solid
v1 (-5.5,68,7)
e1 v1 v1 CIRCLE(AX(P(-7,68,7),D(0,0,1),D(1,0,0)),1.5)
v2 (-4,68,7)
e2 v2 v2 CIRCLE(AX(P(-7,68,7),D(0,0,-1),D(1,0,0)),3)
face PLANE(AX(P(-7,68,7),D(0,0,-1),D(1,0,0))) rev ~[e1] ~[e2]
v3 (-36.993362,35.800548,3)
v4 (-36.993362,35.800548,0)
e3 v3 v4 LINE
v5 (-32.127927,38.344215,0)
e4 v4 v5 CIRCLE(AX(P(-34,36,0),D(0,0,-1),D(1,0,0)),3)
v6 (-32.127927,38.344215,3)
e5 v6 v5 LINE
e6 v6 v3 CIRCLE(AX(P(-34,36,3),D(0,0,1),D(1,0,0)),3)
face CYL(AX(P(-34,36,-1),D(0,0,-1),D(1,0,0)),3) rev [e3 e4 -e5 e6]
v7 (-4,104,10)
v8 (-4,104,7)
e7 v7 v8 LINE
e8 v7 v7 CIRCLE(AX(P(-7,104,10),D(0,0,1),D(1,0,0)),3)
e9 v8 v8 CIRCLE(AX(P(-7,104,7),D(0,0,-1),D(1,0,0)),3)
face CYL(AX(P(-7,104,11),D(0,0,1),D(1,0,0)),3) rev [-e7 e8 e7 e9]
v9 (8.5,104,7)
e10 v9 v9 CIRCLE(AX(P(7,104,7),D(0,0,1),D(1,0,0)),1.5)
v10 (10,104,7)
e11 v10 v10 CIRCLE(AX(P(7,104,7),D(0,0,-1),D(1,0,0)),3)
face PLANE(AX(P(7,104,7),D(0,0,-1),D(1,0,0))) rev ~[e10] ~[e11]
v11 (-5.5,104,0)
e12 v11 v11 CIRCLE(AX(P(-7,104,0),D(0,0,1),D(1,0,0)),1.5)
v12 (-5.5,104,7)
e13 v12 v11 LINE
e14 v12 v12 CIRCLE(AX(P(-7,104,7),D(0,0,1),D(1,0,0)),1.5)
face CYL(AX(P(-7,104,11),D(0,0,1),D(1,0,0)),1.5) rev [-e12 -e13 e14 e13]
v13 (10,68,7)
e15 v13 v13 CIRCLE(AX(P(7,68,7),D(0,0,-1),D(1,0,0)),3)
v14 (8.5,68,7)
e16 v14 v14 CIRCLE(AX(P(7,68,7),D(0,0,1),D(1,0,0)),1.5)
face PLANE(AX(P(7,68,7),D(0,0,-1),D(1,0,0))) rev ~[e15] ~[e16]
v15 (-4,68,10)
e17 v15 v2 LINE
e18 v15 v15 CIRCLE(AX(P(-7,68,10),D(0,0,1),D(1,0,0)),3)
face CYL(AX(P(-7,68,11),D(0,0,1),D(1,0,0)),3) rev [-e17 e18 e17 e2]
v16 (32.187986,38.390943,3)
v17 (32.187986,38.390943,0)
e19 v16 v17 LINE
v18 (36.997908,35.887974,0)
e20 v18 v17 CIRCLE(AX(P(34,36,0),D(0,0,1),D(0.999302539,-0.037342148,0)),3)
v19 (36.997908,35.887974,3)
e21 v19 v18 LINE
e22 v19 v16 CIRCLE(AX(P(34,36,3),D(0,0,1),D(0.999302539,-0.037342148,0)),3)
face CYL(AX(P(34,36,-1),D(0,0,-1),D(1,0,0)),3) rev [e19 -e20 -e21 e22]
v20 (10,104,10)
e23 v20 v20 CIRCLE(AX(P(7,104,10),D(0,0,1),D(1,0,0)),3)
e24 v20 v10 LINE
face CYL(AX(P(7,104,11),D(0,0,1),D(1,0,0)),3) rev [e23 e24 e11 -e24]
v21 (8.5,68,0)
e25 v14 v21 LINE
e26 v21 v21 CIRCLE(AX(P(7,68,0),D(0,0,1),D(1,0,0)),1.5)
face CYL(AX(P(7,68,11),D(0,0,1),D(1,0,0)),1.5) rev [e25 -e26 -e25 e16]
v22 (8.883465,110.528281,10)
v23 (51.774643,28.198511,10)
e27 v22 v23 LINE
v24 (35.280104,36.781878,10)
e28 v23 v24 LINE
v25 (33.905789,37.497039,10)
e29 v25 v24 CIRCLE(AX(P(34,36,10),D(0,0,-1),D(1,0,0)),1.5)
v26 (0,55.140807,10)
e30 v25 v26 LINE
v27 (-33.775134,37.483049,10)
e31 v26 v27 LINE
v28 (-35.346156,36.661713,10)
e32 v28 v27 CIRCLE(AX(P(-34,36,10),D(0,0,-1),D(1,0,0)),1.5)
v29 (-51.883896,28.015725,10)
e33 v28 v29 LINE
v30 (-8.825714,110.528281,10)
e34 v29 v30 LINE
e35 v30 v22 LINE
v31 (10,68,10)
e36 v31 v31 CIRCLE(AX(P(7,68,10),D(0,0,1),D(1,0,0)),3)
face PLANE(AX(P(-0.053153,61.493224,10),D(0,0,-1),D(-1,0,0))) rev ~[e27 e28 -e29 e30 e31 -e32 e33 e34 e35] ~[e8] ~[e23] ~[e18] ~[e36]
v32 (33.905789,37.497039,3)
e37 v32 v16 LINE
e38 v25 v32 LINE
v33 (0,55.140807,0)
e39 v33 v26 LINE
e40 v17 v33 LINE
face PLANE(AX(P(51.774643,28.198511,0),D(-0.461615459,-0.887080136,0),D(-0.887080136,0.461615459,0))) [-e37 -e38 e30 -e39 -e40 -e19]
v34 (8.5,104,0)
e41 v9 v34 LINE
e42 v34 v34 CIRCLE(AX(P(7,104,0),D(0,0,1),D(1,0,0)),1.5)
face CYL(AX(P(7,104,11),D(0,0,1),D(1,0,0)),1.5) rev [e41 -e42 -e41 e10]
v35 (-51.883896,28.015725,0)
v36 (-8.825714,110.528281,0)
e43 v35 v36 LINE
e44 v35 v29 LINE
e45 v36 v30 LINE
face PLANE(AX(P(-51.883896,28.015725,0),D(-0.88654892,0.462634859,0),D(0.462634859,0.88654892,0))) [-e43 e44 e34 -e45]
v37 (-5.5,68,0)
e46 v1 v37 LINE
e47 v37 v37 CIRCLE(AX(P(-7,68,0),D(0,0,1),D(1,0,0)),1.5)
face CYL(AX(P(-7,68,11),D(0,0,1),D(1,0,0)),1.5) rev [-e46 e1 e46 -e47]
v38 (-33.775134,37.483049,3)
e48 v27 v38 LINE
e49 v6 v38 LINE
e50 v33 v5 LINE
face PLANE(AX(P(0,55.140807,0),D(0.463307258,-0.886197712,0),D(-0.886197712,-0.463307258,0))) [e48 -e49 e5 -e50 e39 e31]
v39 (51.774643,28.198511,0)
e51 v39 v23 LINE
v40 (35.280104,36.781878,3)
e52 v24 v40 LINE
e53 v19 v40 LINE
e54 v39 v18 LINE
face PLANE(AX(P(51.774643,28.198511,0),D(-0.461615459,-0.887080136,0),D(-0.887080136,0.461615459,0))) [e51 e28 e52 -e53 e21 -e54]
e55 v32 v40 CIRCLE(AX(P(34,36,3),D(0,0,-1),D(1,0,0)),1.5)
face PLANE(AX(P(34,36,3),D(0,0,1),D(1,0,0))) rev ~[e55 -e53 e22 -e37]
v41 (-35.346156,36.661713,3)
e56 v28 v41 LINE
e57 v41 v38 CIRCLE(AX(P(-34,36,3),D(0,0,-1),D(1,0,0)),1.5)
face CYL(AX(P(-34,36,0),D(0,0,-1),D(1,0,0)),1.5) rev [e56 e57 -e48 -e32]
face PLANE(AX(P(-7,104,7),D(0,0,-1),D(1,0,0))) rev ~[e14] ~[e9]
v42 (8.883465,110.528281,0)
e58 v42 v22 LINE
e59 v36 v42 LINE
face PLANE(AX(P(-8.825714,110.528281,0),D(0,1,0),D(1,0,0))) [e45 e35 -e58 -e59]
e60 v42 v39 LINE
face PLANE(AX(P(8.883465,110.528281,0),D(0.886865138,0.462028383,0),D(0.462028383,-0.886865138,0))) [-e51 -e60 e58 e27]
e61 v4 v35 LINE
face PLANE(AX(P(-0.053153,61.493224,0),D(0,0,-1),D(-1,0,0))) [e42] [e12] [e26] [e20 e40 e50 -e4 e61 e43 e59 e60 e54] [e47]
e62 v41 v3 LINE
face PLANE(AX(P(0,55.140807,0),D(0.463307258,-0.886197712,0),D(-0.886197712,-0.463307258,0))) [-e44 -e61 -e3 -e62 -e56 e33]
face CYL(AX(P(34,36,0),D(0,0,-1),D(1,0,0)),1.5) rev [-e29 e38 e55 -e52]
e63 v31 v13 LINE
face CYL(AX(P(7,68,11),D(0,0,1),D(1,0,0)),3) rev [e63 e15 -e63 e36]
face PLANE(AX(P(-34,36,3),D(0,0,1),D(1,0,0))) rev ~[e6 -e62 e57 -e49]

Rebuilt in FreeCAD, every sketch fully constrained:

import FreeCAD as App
import Part
import Sketcher

V = App.Vector
Q = App.Units.Quantity


def add_polygon(sketch, points):
    """Adds a closed chain of lines whose ends are joined by coincident constraints."""
    first, n = sketch.GeometryCount, len(points)
    for a, b in zip(points, points[1:] + points[:1]):
        sketch.addGeometry(Part.LineSegment(App.Vector(*a, 0), App.Vector(*b, 0)), False)
    for i in range(n):
        sketch.addConstraint(Sketcher.Constraint("Coincident", first + i, 2, first + (i + 1) % n, 1))

doc = App.newDocument("Part")
body = doc.addObject("PartDesign::Body", "Body")

# Sketch on XZ plane
sketch1 = doc.addObject("Sketcher::SketchObject", "Sketch")
body.addObject(sketch1)
sketch1.AttachmentSupport = (doc.XZ_Plane, [""])
sketch1.MapMode = "FlatFace"
sketch1.AttachmentOffset = App.Placement(V(0, 0, 34), App.Rotation())
sketch1.addGeometry(Part.Circle(V(-7, 37, 0), V(0, 0, 1), 3), False)
sketch1.addConstraint([
    Sketcher.Constraint("Diameter", 0, Q("6 mm")),
    Sketcher.Constraint("DistanceX", 0, 3, -1, 1, Q("7 mm")),
    Sketcher.Constraint("DistanceY", -1, 1, 0, 3, Q("37 mm")),
])
pad1 = doc.addObject("PartDesign::Pad", "Pad")
body.addObject(pad1)
pad1.Profile = sketch1
pad1.Length = 4
body2 = doc.addObject("PartDesign::Body", "Body001")

# Sketch on XZ plane
sketch2 = doc.addObject("Sketcher::SketchObject", "Sketch001")
body2.addObject(sketch2)
sketch2.AttachmentSupport = (doc.getObject("XZ_Plane001"), [""])
sketch2.MapMode = "FlatFace"
sketch2.AttachmentOffset = App.Placement(V(0, 0, 34), App.Rotation())
sketch2.addGeometry(Part.Circle(V(7, 73, 0), V(0, 0, 1), 3), False)
sketch2.addConstraint([
    Sketcher.Constraint("Diameter", 0, Q("6 mm")),
    Sketcher.Constraint("DistanceX", -1, 1, 0, 3, Q("7 mm")),
    Sketcher.Constraint("DistanceY", -1, 1, 0, 3, Q("73 mm")),
])
pad2 = doc.addObject("PartDesign::Pad", "Pad001")
body2.addObject(pad2)
pad2.Profile = sketch2
pad2.Length = 4
body3 = doc.addObject("PartDesign::Body", "Body002")

# Sketch on XZ plane
sketch3 = doc.addObject("Sketcher::SketchObject", "Sketch002")
body3.addObject(sketch3)
sketch3.AttachmentSupport = (doc.getObject("XZ_Plane002"), [""])
sketch3.MapMode = "FlatFace"
sketch3.AttachmentOffset = App.Placement(V(0, 0, 34), App.Rotation())
sketch3.addGeometry(Part.Circle(V(-7, 73, 0), V(0, 0, 1), 3), False)
sketch3.addConstraint([
    Sketcher.Constraint("Diameter", 0, Q("6 mm")),
    Sketcher.Constraint("DistanceX", 0, 3, -1, 1, Q("7 mm")),
    Sketcher.Constraint("DistanceY", -1, 1, 0, 3, Q("73 mm")),
])
pad3 = doc.addObject("PartDesign::Pad", "Pad002")
body3.addObject(pad3)
pad3.Profile = sketch3
pad3.Length = 4
body4 = doc.addObject("PartDesign::Body", "Body003")
body4.AllowCompound = True

# Sketch on XZ plane
sketch4 = doc.addObject("Sketcher::SketchObject", "Sketch003")
body4.addObject(sketch4)
sketch4.AttachmentSupport = (doc.getObject("XZ_Plane003"), [""])
sketch4.MapMode = "FlatFace"
sketch4.AttachmentOffset = App.Placement(V(0, 0, 34), App.Rotation())
sketch4.addGeometry(Part.Circle(V(7, 37, 0), V(0, 0, 1), 3), False)
sketch4.addConstraint([
    Sketcher.Constraint("Diameter", 0, Q("6 mm")),
    Sketcher.Constraint("DistanceX", -1, 1, 0, 3, Q("7 mm")),
    Sketcher.Constraint("DistanceY", -1, 1, 0, 3, Q("37 mm")),
])
pad4 = doc.addObject("PartDesign::Pad", "Pad003")
body4.addObject(pad4)
pad4.Profile = sketch4
pad4.Length = 4
doc.recompute()

boolean = doc.addObject("PartDesign::Boolean", "Boolean")
body4.addObject(boolean)
boolean.Type = "Fuse"
boolean.addObjects([body])
doc.recompute()

boolean2 = doc.addObject("PartDesign::Boolean", "Boolean001")
body4.addObject(boolean2)
boolean2.Type = "Fuse"
boolean2.addObjects([body2])
doc.recompute()

boolean3 = doc.addObject("PartDesign::Boolean", "Boolean002")
body4.addObject(boolean3)
boolean3.Type = "Fuse"
boolean3.addObjects([body3])
body5 = doc.addObject("PartDesign::Body", "Body004")
body5.AllowCompound = True
doc.recompute()

body4.Placement = App.Placement(V(0, 141, 45), App.Rotation(V(1, 0, 0), 90))
boolean4 = doc.addObject("PartDesign::Boolean", "Boolean003")
body5.addObject(boolean4)
boolean4.Type = "Fuse"
boolean4.addObjects([body4])
body6 = doc.addObject("PartDesign::Body", "Body005")

# Sketch on XZ plane
sketch5 = doc.addObject("Sketcher::SketchObject", "Sketch004")
body6.addObject(sketch5)
sketch5.AttachmentSupport = (doc.getObject("XZ_Plane005"), [""])
sketch5.MapMode = "FlatFace"
sketch5.AttachmentOffset = App.Placement(V(0, 0, 34), App.Rotation())
sketch5.addGeometry(Part.Circle(V(-7, 37, 0), V(0, 0, 1), 1.5), False)
sketch5.addConstraint([
    Sketcher.Constraint("Diameter", 0, Q("3 mm")),
    Sketcher.Constraint("DistanceX", 0, 3, -1, 1, Q("7 mm")),
    Sketcher.Constraint("DistanceY", -1, 1, 0, 3, Q("37 mm")),
])
pad5 = doc.addObject("PartDesign::Pad", "Pad004")
body6.addObject(pad5)
pad5.Profile = sketch5
pad5.Length = 20
body7 = doc.addObject("PartDesign::Body", "Body006")

# Sketch on XZ plane
sketch6 = doc.addObject("Sketcher::SketchObject", "Sketch005")
body7.addObject(sketch6)
sketch6.AttachmentSupport = (doc.getObject("XZ_Plane006"), [""])
sketch6.MapMode = "FlatFace"
sketch6.AttachmentOffset = App.Placement(V(0, 0, 34), App.Rotation())
sketch6.addGeometry(Part.Circle(V(7, 73, 0), V(0, 0, 1), 1.5), False)
sketch6.addConstraint([
    Sketcher.Constraint("Diameter", 0, Q("3 mm")),
    Sketcher.Constraint("DistanceX", -1, 1, 0, 3, Q("7 mm")),
    Sketcher.Constraint("DistanceY", -1, 1, 0, 3, Q("73 mm")),
])
pad6 = doc.addObject("PartDesign::Pad", "Pad005")
body7.addObject(pad6)
pad6.Profile = sketch6
pad6.Length = 20
body8 = doc.addObject("PartDesign::Body", "Body007")

# Sketch on XZ plane
sketch7 = doc.addObject("Sketcher::SketchObject", "Sketch006")
body8.addObject(sketch7)
sketch7.AttachmentSupport = (doc.getObject("XZ_Plane007"), [""])
sketch7.MapMode = "FlatFace"
sketch7.AttachmentOffset = App.Placement(V(0, 0, 34), App.Rotation())
sketch7.addGeometry(Part.Circle(V(-7, 73, 0), V(0, 0, 1), 1.5), False)
sketch7.addConstraint([
    Sketcher.Constraint("Diameter", 0, Q("3 mm")),
    Sketcher.Constraint("DistanceX", 0, 3, -1, 1, Q("7 mm")),
    Sketcher.Constraint("DistanceY", -1, 1, 0, 3, Q("73 mm")),
])
pad7 = doc.addObject("PartDesign::Pad", "Pad006")
body8.addObject(pad7)
pad7.Profile = sketch7
pad7.Length = 20
body9 = doc.addObject("PartDesign::Body", "Body008")
body9.AllowCompound = True

# Sketch on XZ plane
sketch8 = doc.addObject("Sketcher::SketchObject", "Sketch007")
body9.addObject(sketch8)
sketch8.AttachmentSupport = (doc.getObject("XZ_Plane008"), [""])
sketch8.MapMode = "FlatFace"
sketch8.AttachmentOffset = App.Placement(V(0, 0, 34), App.Rotation())
sketch8.addGeometry(Part.Circle(V(7, 37, 0), V(0, 0, 1), 1.5), False)
sketch8.addConstraint([
    Sketcher.Constraint("Diameter", 0, Q("3 mm")),
    Sketcher.Constraint("DistanceX", -1, 1, 0, 3, Q("7 mm")),
    Sketcher.Constraint("DistanceY", -1, 1, 0, 3, Q("37 mm")),
])
pad8 = doc.addObject("PartDesign::Pad", "Pad007")
body9.addObject(pad8)
pad8.Profile = sketch8
pad8.Length = 20
doc.recompute()

boolean5 = doc.addObject("PartDesign::Boolean", "Boolean004")
body9.addObject(boolean5)
boolean5.Type = "Fuse"
boolean5.addObjects([body6])
doc.recompute()

boolean6 = doc.addObject("PartDesign::Boolean", "Boolean005")
body9.addObject(boolean6)
boolean6.Type = "Fuse"
boolean6.addObjects([body7])
doc.recompute()

boolean7 = doc.addObject("PartDesign::Boolean", "Boolean006")
body9.addObject(boolean7)
boolean7.Type = "Fuse"
boolean7.addObjects([body8])
body10 = doc.addObject("PartDesign::Body", "Body009")
body10.AllowCompound = True
doc.recompute()

body9.Placement = App.Placement(V(0, 141, 45), App.Rotation(V(1, 0, 0), 90))
boolean8 = doc.addObject("PartDesign::Boolean", "Boolean007")
body10.addObject(boolean8)
boolean8.Type = "Fuse"
boolean8.addObjects([body9])
body11 = doc.addObject("PartDesign::Body", "Body010")

# Sketch on XY plane
sketch9 = doc.addObject("Sketcher::SketchObject", "Sketch008")
body11.addObject(sketch9)
sketch9.AttachmentSupport = (doc.getObject("XY_Plane010"), [""])
sketch9.MapMode = "FlatFace"
sketch9.addGeometry(Part.Circle(V(34, 36, 0), V(0, 0, 1), 1.5), False)
sketch9.addConstraint([
    Sketcher.Constraint("Diameter", 0, Q("3 mm")),
    Sketcher.Constraint("DistanceX", -1, 1, 0, 3, Q("34 mm")),
    Sketcher.Constraint("DistanceY", -1, 1, 0, 3, Q("36 mm")),
])
pad9 = doc.addObject("PartDesign::Pad", "Pad008")
body11.addObject(pad9)
pad9.Profile = sketch9
pad9.Length = 50
body12 = doc.addObject("PartDesign::Body", "Body011")
body12.AllowCompound = True

# Sketch on XY plane
sketch10 = doc.addObject("Sketcher::SketchObject", "Sketch009")
body12.addObject(sketch10)
sketch10.AttachmentSupport = (doc.getObject("XY_Plane011"), [""])
sketch10.MapMode = "FlatFace"
sketch10.addGeometry(Part.Circle(V(-34, 36, 0), V(0, 0, 1), 1.5), False)
sketch10.addConstraint([
    Sketcher.Constraint("Diameter", 0, Q("3 mm")),
    Sketcher.Constraint("DistanceX", 0, 3, -1, 1, Q("34 mm")),
    Sketcher.Constraint("DistanceY", -1, 1, 0, 3, Q("36 mm")),
])
pad10 = doc.addObject("PartDesign::Pad", "Pad009")
body12.addObject(pad10)
pad10.Profile = sketch10
pad10.Length = 50
doc.recompute()

boolean9 = doc.addObject("PartDesign::Boolean", "Boolean008")
body12.addObject(boolean9)
boolean9.Type = "Fuse"
boolean9.addObjects([body11])
body13 = doc.addObject("PartDesign::Body", "Body012")

# Sketch on XY plane
sketch11 = doc.addObject("Sketcher::SketchObject", "Sketch010")
body13.addObject(sketch11)
sketch11.AttachmentSupport = (doc.getObject("XY_Plane012"), [""])
sketch11.MapMode = "FlatFace"
sketch11.AttachmentOffset = App.Placement(V(0, 0, -1), App.Rotation())
sketch11.addGeometry(Part.Circle(V(-34, 36, 0), V(0, 0, 1), 3), False)
sketch11.addConstraint([
    Sketcher.Constraint("Diameter", 0, Q("6 mm")),
    Sketcher.Constraint("DistanceX", 0, 3, -1, 1, Q("34 mm")),
    Sketcher.Constraint("DistanceY", -1, 1, 0, 3, Q("36 mm")),
])
pad11 = doc.addObject("PartDesign::Pad", "Pad010")
body13.addObject(pad11)
pad11.Profile = sketch11
pad11.Length = 4
body14 = doc.addObject("PartDesign::Body", "Body013")
body14.AllowCompound = True

# Sketch on XY plane
sketch12 = doc.addObject("Sketcher::SketchObject", "Sketch011")
body14.addObject(sketch12)
sketch12.AttachmentSupport = (doc.getObject("XY_Plane013"), [""])
sketch12.MapMode = "FlatFace"
sketch12.AttachmentOffset = App.Placement(V(0, 0, -1), App.Rotation())
sketch12.addGeometry(Part.Circle(V(34, 36, 0), V(0, 0, 1), 3), False)
sketch12.addConstraint([
    Sketcher.Constraint("Diameter", 0, Q("6 mm")),
    Sketcher.Constraint("DistanceX", -1, 1, 0, 3, Q("34 mm")),
    Sketcher.Constraint("DistanceY", -1, 1, 0, 3, Q("36 mm")),
])
pad12 = doc.addObject("PartDesign::Pad", "Pad011")
body14.addObject(pad12)
pad12.Profile = sketch12
pad12.Length = 4
doc.recompute()

boolean10 = doc.addObject("PartDesign::Boolean", "Boolean009")
body14.addObject(boolean10)
boolean10.Type = "Fuse"
boolean10.addObjects([body13])
body15 = doc.addObject("PartDesign::Body", "Body014")

# Sketch on XY plane
sketch13 = doc.addObject("Sketcher::SketchObject", "Sketch012")
body15.addObject(sketch13)
sketch13.AttachmentSupport = (doc.getObject("XY_Plane014"), [""])
sketch13.MapMode = "FlatFace"
add_polygon(sketch13, [(-9, 111), (-52, 28), (0, 55), (52, 28), (9, 111)])  # lines 0-4
sketch13.addConstraint([
    Sketcher.Constraint("Horizontal", 4),
    Sketcher.Constraint("PointOnObject", 1, 2, -2),
    Sketcher.Constraint("DistanceX", 4, 2, 4, 1, Q("17.709179 mm")),
    Sketcher.Constraint("DistanceY", -1, 1, 2, 2, Q("28.198511 mm")),
    Sketcher.Constraint("DistanceY", -1, 1, 3, 2, Q("110.528281 mm")),
    Sketcher.Constraint("DistanceX", 0, 2, 2, 2, Q("103.658539 mm")),
    Sketcher.Constraint("DistanceX", 0, 2, 3, 2, Q("60.767361 mm")),
    Sketcher.Constraint("Distance", 0, Q("93.071633 mm")),
    Sketcher.Constraint("Distance", 1, Q("58.546637 mm")),
    Sketcher.Constraint("Distance", 2, Q("58.365238 mm")),
])
pad13 = doc.addObject("PartDesign::Pad", "Pad012")
body15.addObject(pad13)
pad13.Profile = sketch13
pad13.Length = 10
doc.recompute()

boolean11 = doc.addObject("PartDesign::Boolean", "Boolean010")
body15.addObject(boolean11)
boolean11.Type = "Cut"
boolean11.addObjects([body14])
doc.recompute()

boolean12 = doc.addObject("PartDesign::Boolean", "Boolean011")
body15.addObject(boolean12)
boolean12.Type = "Cut"
boolean12.addObjects([body12])
doc.recompute()

boolean13 = doc.addObject("PartDesign::Boolean", "Boolean012")
body15.addObject(boolean13)
boolean13.Type = "Cut"
boolean13.addObjects([body10])
doc.recompute()

boolean14 = doc.addObject("PartDesign::Boolean", "Boolean013")
body15.addObject(boolean14)
boolean14.Type = "Cut"
boolean14.addObjects([body5])

doc.recompute()
